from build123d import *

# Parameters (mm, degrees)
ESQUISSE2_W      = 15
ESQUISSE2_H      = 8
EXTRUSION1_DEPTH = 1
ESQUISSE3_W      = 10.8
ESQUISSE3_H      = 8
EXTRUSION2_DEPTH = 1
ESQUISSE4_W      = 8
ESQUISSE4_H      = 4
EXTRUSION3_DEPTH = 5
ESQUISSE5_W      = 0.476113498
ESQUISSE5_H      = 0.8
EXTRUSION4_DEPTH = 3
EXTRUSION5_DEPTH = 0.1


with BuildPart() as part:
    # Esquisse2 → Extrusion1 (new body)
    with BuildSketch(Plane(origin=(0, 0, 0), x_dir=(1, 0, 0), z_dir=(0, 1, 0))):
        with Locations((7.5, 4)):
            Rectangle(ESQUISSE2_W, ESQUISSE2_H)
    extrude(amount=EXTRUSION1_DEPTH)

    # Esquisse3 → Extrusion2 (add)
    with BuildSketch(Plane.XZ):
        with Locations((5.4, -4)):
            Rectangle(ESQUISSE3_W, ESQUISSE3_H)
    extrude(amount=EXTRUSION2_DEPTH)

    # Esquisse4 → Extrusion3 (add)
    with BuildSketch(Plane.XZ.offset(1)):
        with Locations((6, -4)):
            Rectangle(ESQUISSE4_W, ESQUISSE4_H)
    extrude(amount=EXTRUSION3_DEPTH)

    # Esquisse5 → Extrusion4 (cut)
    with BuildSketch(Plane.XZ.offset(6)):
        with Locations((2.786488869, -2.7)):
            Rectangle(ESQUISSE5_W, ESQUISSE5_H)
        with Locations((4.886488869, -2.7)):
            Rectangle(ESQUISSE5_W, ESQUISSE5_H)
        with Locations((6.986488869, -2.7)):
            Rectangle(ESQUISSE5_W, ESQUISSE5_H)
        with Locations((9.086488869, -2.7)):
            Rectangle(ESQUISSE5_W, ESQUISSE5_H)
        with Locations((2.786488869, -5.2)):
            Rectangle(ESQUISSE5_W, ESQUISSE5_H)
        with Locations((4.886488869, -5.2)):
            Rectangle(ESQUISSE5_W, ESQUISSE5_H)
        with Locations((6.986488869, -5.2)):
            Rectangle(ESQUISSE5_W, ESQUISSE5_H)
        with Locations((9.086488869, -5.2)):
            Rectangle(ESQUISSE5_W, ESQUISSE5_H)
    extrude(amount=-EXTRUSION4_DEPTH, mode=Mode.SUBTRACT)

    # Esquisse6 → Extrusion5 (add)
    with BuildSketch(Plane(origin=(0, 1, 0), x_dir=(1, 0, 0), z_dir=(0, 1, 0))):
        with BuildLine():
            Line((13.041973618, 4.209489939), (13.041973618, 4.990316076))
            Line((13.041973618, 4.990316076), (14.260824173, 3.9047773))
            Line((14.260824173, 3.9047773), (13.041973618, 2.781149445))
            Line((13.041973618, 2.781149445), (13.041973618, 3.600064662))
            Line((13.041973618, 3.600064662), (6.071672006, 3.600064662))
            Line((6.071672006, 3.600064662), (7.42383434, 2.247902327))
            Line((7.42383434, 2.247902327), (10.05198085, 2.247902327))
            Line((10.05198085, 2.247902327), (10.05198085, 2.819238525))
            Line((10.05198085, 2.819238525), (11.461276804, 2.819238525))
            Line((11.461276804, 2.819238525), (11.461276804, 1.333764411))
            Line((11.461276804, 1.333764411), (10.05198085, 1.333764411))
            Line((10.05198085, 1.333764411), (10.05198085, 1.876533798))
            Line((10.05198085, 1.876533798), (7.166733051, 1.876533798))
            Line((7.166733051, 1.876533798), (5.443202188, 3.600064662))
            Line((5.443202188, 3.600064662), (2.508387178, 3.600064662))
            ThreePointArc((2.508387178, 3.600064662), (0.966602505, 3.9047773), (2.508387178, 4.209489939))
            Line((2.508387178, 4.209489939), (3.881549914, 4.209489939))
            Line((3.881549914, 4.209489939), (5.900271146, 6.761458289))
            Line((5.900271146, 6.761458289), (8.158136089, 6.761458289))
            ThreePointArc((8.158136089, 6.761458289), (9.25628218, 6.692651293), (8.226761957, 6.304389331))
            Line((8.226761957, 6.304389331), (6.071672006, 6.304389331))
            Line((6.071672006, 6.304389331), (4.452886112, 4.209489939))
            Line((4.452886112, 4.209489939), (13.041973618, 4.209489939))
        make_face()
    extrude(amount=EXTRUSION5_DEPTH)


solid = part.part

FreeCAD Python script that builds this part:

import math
import FreeCAD as App
import Part
import Sketcher
from FreeCAD import Vector
Q = App.Units.Quantity


def add_polygon(sketch, points):
    """Adds a closed chain of lines whose ends are joined by coincident constraints."""
    first, n = sketch.GeometryCount, len(points)
    for a, b in zip(points, points[1:] + points[:1]):
        sketch.addGeometry(Part.LineSegment(App.Vector(*a, 0), App.Vector(*b, 0)), False)
    for i in range(n):
        sketch.addConstraint(Sketcher.Constraint("Coincident", first + i, 2, first + (i + 1) % n, 1))

doc = App.newDocument("Part")
params = doc.addObject("Spreadsheet::Sheet", "Params")
for row, (alias, value) in enumerate([
    ("sketch1_width", "15 mm"),
    ("sketch1_height", "8 mm"),
    ("pad1_length", "1 mm"),
    ("sketch2_height", "8 mm"),
    ("sketch2_width", "10.8 mm"),
    ("pad2_length", "1 mm"),
    ("sketch3_width", "8 mm"),
    ("sketch3_height", "4 mm"),
    ("pad3_length", "5 mm"),
    ("sketch4_height", "0.8 mm"),
    ("pocket1_length", "3 mm"),
    ("pad4_length", "0.1 mm"),
], start=1):
    params.set(f"A{row}", alias)
    params.set(f"B{row}", "=" + value)
    params.setAlias(f"B{row}", alias)

body = doc.addObject("PartDesign::Body", "Body")

sketch1 = body.newObject("Sketcher::SketchObject", "Sketch")
sketch1.AttachmentSupport = (doc.getObject("XZ_Plane"), [""])
sketch1.MapMode = "FlatFace"
add_polygon(sketch1, [(0, -8), (0, 0), (15, 0), (15, -8)])
sketch1.addConstraint([
    Sketcher.Constraint("Vertical", 0),
    Sketcher.Constraint("Horizontal", 1),
    Sketcher.Constraint("Vertical", 2),
    Sketcher.Constraint("Horizontal", 3),
    Sketcher.Constraint("Coincident", 0, 2, -1, 1),
    Sketcher.Constraint("DistanceX", 1, 1, 1, 2, 15.0),
    Sketcher.Constraint("DistanceY", 0, 1, 0, 2, 8.0),
])
sketch1.setExpression("Constraints[9]", "Params.sketch1_width")
sketch1.setExpression("Constraints[10]", "Params.sketch1_height")
pad1 = body.newObject("PartDesign::Pad", "Pad")
pad1.Profile = sketch1
pad1.setExpression("Length", "Params.pad1_length")
pad1.Reversed = True

sketch2 = body.newObject("Sketcher::SketchObject", "Sketch001")
sketch2.AttachmentSupport = (doc.getObject("XZ_Plane"), [""])
sketch2.MapMode = "FlatFace"
add_polygon(sketch2, [(0, 0), (0, -8), (10.8, -8), (10.8, 0)])
sketch2.addConstraint([
    Sketcher.Constraint("Vertical", 0),
    Sketcher.Constraint("Horizontal", 1),
    Sketcher.Constraint("Vertical", 2),
    Sketcher.Constraint("Horizontal", 3),
    Sketcher.Constraint("Coincident", 3, 2, -1, 1),
    Sketcher.Constraint("DistanceY", 0, 2, 0, 1, 8.0),
    Sketcher.Constraint("DistanceX", 1, 1, 1, 2, 10.8),
])
sketch2.setExpression("Constraints[9]", "Params.sketch2_height")
sketch2.setExpression("Constraints[10]", "Params.sketch2_width")
pad2 = body.newObject("PartDesign::Pad", "Pad001")
pad2.Profile = sketch2
pad2.setExpression("Length", "Params.pad2_length")

sketch3 = body.newObject("Sketcher::SketchObject", "Sketch002")
sketch3.AttachmentSupport = (doc.getObject("XZ_Plane"), [""])
sketch3.MapMode = "FlatFace"
sketch3.AttachmentOffset = App.Placement(Vector(0, 0, 1), App.Rotation())
add_polygon(sketch3, [(2, -2), (2, -6), (10, -6), (10, -2)])
sketch3.addConstraint([
    Sketcher.Constraint("Vertical", 0),
    Sketcher.Constraint("Horizontal", 1),
    Sketcher.Constraint("Vertical", 2),
    Sketcher.Constraint("Horizontal", 3),
    Sketcher.Constraint("DistanceX", 1, 1, 1, 2, 8.0),
    Sketcher.Constraint("DistanceY", 0, 2, 0, 1, 4.0),
    Sketcher.Constraint("DistanceX", -1, 1, 0, 2, 2.0),
    Sketcher.Constraint("DistanceY", 0, 2, -1, 1, 6.0),
])
sketch3.setExpression("Constraints[8]", "Params.sketch3_width")
sketch3.setExpression("Constraints[9]", "Params.sketch3_height")
pad3 = body.newObject("PartDesign::Pad", "Pad002")
pad3.Profile = sketch3
pad3.setExpression("Length", "Params.pad3_length")

sketch4 = body.newObject("Sketcher::SketchObject", "Sketch003")
sketch4.AttachmentSupport = (doc.getObject("XZ_Plane"), [""])
sketch4.MapMode = "FlatFace"
sketch4.AttachmentOffset = App.Placement(Vector(0, 0, 6), App.Rotation())
add_polygon(sketch4, [(2.548432, -2.3), (2.548432, -3.1), (3.024546, -3.1), (3.024546, -2.3)])
add_polygon(sketch4, [(4.648432, -2.3), (4.648432, -3.1), (5.124546, -3.1), (5.124546, -2.3)])
add_polygon(sketch4, [(6.748432, -2.3), (6.748432, -3.1), (7.224546, -3.1), (7.224546, -2.3)])
add_polygon(sketch4, [(8.848432, -2.3), (8.848432, -3.1), (9.324546, -3.1), (9.324546, -2.3)])
add_polygon(sketch4, [(2.548432, -4.8), (2.548432, -5.6), (3.024546, -5.6), (3.024546, -4.8)])
add_polygon(sketch4, [(4.648432, -4.8), (4.648432, -5.6), (5.124546, -5.6), (5.124546, -4.8)])
add_polygon(sketch4, [(6.748432, -4.8), (6.748432, -5.6), (7.224546, -5.6), (7.224546, -4.8)])
add_polygon(sketch4, [(8.848432, -4.8), (8.848432, -5.6), (9.324546, -5.6), (9.324546, -4.8)])
sketch4.addConstraint([
    Sketcher.Constraint("Vertical", 0),
    Sketcher.Constraint("Horizontal", 1),
    Sketcher.Constraint("Vertical", 2),
    Sketcher.Constraint("Horizontal", 3),
    Sketcher.Constraint("Vertical", 4),
    Sketcher.Constraint("Horizontal", 5),
    Sketcher.Constraint("Vertical", 6),
    Sketcher.Constraint("Horizontal", 7),
    Sketcher.Constraint("Vertical", 8),
    Sketcher.Constraint("Horizontal", 9),
    Sketcher.Constraint("Vertical", 10),
    Sketcher.Constraint("Horizontal", 11),
    Sketcher.Constraint("Vertical", 12),
    Sketcher.Constraint("Horizontal", 13),
    Sketcher.Constraint("Vertical", 14),
    Sketcher.Constraint("Horizontal", 15),
    Sketcher.Constraint("Vertical", 16),
    Sketcher.Constraint("Horizontal", 17),
    Sketcher.Constraint("Vertical", 18),
    Sketcher.Constraint("Horizontal", 19),
    Sketcher.Constraint("Vertical", 20),
    Sketcher.Constraint("Horizontal", 21),
    Sketcher.Constraint("Vertical", 22),
    Sketcher.Constraint("Horizontal", 23),
    Sketcher.Constraint("Vertical", 24),
    Sketcher.Constraint("Horizontal", 25),
    Sketcher.Constraint("Vertical", 26),
    Sketcher.Constraint("Horizontal", 27),
    Sketcher.Constraint("Vertical", 28),
    Sketcher.Constraint("Horizontal", 29),
    Sketcher.Constraint("Vertical", 30),
    Sketcher.Constraint("Horizontal", 31),
    Sketcher.Constraint("Horizontal", 1, 2, 4, 2),
    Sketcher.Constraint("Horizontal", 3, 2, 6, 2),
    Sketcher.Constraint("Horizontal", 5, 2, 8, 2),
    Sketcher.Constraint("Horizontal", 7, 2, 10, 2),
    Sketcher.Constraint("Horizontal", 9, 2, 12, 2),
    Sketcher.Constraint("Horizontal", 11, 2, 14, 2),
    Sketcher.Constraint("Horizontal", 17, 2, 20, 2),
    Sketcher.Constraint("Horizontal", 19, 2, 22, 2),
    Sketcher.Constraint("Horizontal", 21, 2, 24, 2),
    Sketcher.Constraint("Horizontal", 23, 2, 26, 2),
    Sketcher.Constraint("Horizontal", 25, 2, 28, 2),
    Sketcher.Constraint("Horizontal", 27, 2, 30, 2),
    Sketcher.Constraint("Vertical", 3, 2, 16, 2),
    Sketcher.Constraint("Vertical", 2, 2, 17, 2),
    Sketcher.Constraint("Vertical", 7, 2, 20, 2),
    Sketcher.Constraint("Vertical", 6, 2, 21, 2),
    Sketcher.Constraint("Vertical", 11, 2, 24, 2),
    Sketcher.Constraint("Vertical", 10, 2, 25, 2),
    Sketcher.Constraint("Vertical", 15, 2, 28, 2),
    Sketcher.Constraint("Vertical", 14, 2, 29, 2),
    Sketcher.Constraint("Equal", 3, 5),
    Sketcher.Constraint("Equal", 7, 9),
    Sketcher.Constraint("Equal", 11, 13),
    Sketcher.Constraint("Equal", 14, 16),
    Sketcher.Constraint("DistanceY", 0, 2, 0, 1, 0.8),
    Sketcher.Constraint("DistanceY", 0, 2, -1, 1, 3.1),
    Sketcher.Constraint("DistanceY", 16, 2, -1, 1, 5.6),
    Sketcher.Constraint("DistanceX", 0, 2, 4, 2, 2.1),
    Sketcher.Constraint("DistanceX", 4, 2, 8, 2, 2.1),
    Sketcher.Constraint("DistanceX", 8, 2, 12, 2, 2.1),
    Sketcher.Constraint("DistanceX", 1, 1, 1, 2, 0.476113),
    Sketcher.Constraint("DistanceX", -1, 1, 0, 2, 2.548432),
])
sketch4.setExpression("Constraints[88]", "Params.sketch4_height")
pocket1 = body.newObject("PartDesign::Pocket", "Pocket")
pocket1.Profile = sketch4
pocket1.setExpression("Length", "Params.pocket1_length")

sketch5 = body.newObject("Sketcher::SketchObject", "Sketch004")
sketch5.AttachmentSupport = (doc.getObject("XZ_Plane"), [""])
sketch5.MapMode = "FlatFace"
sketch5.AttachmentOffset = App.Placement(Vector(0, 0, -1), App.Rotation())
sketch5.addGeometry([
    Part.LineSegment(Vector(13.041974, -4.990316, 0), Vector(13.041974, -4.20949, 0)),
    Part.LineSegment(Vector(13.041974, -4.20949, 0), Vector(4.452886, -4.20949, 0)),
    Part.LineSegment(Vector(4.452886, -4.20949, 0), Vector(6.071672, -6.304389, 0)),
    Part.LineSegment(Vector(6.071672, -6.304389, 0), Vector(8.226762, -6.304389, 0)),
    Part.ArcOfCircle(Part.Circle(Vector(8.699819, -6.609102, 0), Vector(0, 0, 1), 0.562701), math.radians(-164.290565), math.radians(147.212968)),
    Part.LineSegment(Vector(8.158136, -6.761458, 0), Vector(5.900271, -6.761458, 0)),
    Part.LineSegment(Vector(5.900271, -6.761458, 0), Vector(3.88155, -4.20949, 0)),
    Part.LineSegment(Vector(3.88155, -4.20949, 0), Vector(2.508387, -4.20949, 0)),
    Part.ArcOfCircle(Part.Circle(Vector(1.767606, -3.904777, 0), Vector(0, 0, 1), 0.801003), math.radians(22.359306), math.radians(337.640694)),
    Part.LineSegment(Vector(2.508387, -3.600065, 0), Vector(5.443202, -3.600065, 0)),
    Part.LineSegment(Vector(5.443202, -3.600065, 0), Vector(7.166733, -1.876534, 0)),
    Part.LineSegment(Vector(7.166733, -1.876534, 0), Vector(10.051981, -1.876534, 0)),
    Part.LineSegment(Vector(10.051981, -1.876534, 0), Vector(10.051981, -1.333764, 0)),
    Part.LineSegment(Vector(10.051981, -1.333764, 0), Vector(11.461277, -1.333764, 0)),
    Part.LineSegment(Vector(11.461277, -1.333764, 0), Vector(11.461277, -2.819239, 0)),
    Part.LineSegment(Vector(11.461277, -2.819239, 0), Vector(10.051981, -2.819239, 0)),
    Part.LineSegment(Vector(10.051981, -2.819239, 0), Vector(10.051981, -2.247902, 0)),
    Part.LineSegment(Vector(10.051981, -2.247902, 0), Vector(7.423834, -2.247902, 0)),
    Part.LineSegment(Vector(7.423834, -2.247902, 0), Vector(6.071672, -3.600065, 0)),
    Part.LineSegment(Vector(6.071672, -3.600065, 0), Vector(13.041974, -3.600065, 0)),
    Part.LineSegment(Vector(13.041974, -3.600065, 0), Vector(13.041974, -2.781149, 0)),
    Part.LineSegment(Vector(13.041974, -2.781149, 0), Vector(14.260824, -3.904777, 0)),
    Part.LineSegment(Vector(14.260824, -3.904777, 0), Vector(13.041974, -4.990316, 0)),
], False)
sketch5.addConstraint([
    Sketcher.Constraint("Coincident", 0, 2, 1, 1),
    Sketcher.Constraint("Coincident", 1, 2, 2, 1),
    Sketcher.Constraint("Coincident", 2, 2, 3, 1),
    Sketcher.Constraint("Coincident", 3, 2, 4, 2),
    Sketcher.Constraint("Coincident", 4, 1, 5, 1),
    Sketcher.Constraint("Coincident", 5, 2, 6, 1),
    Sketcher.Constraint("Coincident", 6, 2, 7, 1),
    Sketcher.Constraint("Coincident", 7, 2, 8, 2),
    Sketcher.Constraint("Coincident", 8, 1, 9, 1),
    Sketcher.Constraint("Coincident", 9, 2, 10, 1),
    Sketcher.Constraint("Coincident", 10, 2, 11, 1),
    Sketcher.Constraint("Coincident", 11, 2, 12, 1),
    Sketcher.Constraint("Coincident", 12, 2, 13, 1),
    Sketcher.Constraint("Coincident", 13, 2, 14, 1),
    Sketcher.Constraint("Coincident", 14, 2, 15, 1),
    Sketcher.Constraint("Coincident", 15, 2, 16, 1),
    Sketcher.Constraint("Coincident", 16, 2, 17, 1),
    Sketcher.Constraint("Coincident", 17, 2, 18, 1),
    Sketcher.Constraint("Coincident", 18, 2, 19, 1),
    Sketcher.Constraint("Coincident", 19, 2, 20, 1),
    Sketcher.Constraint("Coincident", 20, 2, 21, 1),
    Sketcher.Constraint("Coincident", 21, 2, 22, 1),
    Sketcher.Constraint("Coincident", 22, 2, 0, 1),
    Sketcher.Constraint("Vertical", 0),
    Sketcher.Constraint("Horizontal", 1),
    Sketcher.Constraint("Horizontal", 3),
    Sketcher.Constraint("Horizontal", 5),
    Sketcher.Constraint("Horizontal", 7),
    Sketcher.Constraint("Horizontal", 9),
    Sketcher.Constraint("Horizontal", 11),
    Sketcher.Constraint("Vertical", 12),
    Sketcher.Constraint("Horizontal", 13),
    Sketcher.Constraint("Vertical", 14),
    Sketcher.Constraint("Horizontal", 15),
    Sketcher.Constraint("Vertical", 16),
    Sketcher.Constraint("Horizontal", 17),
    Sketcher.Constraint("Horizontal", 19),
    Sketcher.Constraint("Vertical", 20),
    Sketcher.Constraint("Parallel", 10, 18),
    Sketcher.Constraint("Horizontal", 1, 2, 6, 2),
    Sketcher.Constraint("Horizontal", 9, 2, 18, 2),
    Sketcher.Constraint("Horizontal", 8, 3, 21, 2),
    Sketcher.Constraint("Vertical", 7, 2, 8, 1),
    Sketcher.Constraint("Vertical", 12, 2, 15, 2),
    Sketcher.Constraint("Vertical", 2, 2, 18, 2),
    Sketcher.Constraint("Vertical", 0, 2, 19, 2),
    Sketcher.Constraint("Angle", 10, Q("45 deg")),
    Sketcher.Constraint("Radius", 4, 0.562701),
    Sketcher.Constraint("DistanceX", 19, 1, 19, 2, 6.970302),
    Sketcher.Constraint("Radius", 8, 0.801003),
    Sketcher.Constraint("DistanceX", 3, 1, 3, 2, 2.15509),
    Sketcher.Constraint("DistanceY", 12, 1, 12, 2, 0.542769),
    Sketcher.Constraint("DistanceY", 4, 3, -1, 1, 6.609102),
    Sketcher.Constraint("DistanceY", 2, 2, 1, 2, 2.094899),
    Sketcher.Constraint("DistanceX", 5, 2, 2, 2, 0.171401),
    Sketcher.Constraint("DistanceX", 7, 2, 1, 2, 1.944499),
    Sketcher.Constraint("DistanceY", 9, 2, 12, 2, 2.2663),
    Sketcher.Constraint("DistanceX", 10, 2, 17, 2, 0.257101),
    Sketcher.Constraint("Distance", 21, 1.65775),
    Sketcher.Constraint("DistanceX", 1, 2, 1, 1, 8.589088),
    Sketcher.Constraint("DistanceX", 5, 2, 5, 1, 2.257865),
    Sketcher.Constraint("DistanceX", 7, 2, 7, 1, 1.373163),
    Sketcher.Constraint("DistanceX", 9, 1, 9, 2, 2.934815),
    Sketcher.Constraint("DistanceX", 11, 1, 11, 2, 2.885248),
    Sketcher.Constraint("DistanceX", 13, 1, 13, 2, 1.409296),
    Sketcher.Constraint("DistanceY", 0, 1, 0, 2, 0.780826),
    Sketcher.Constraint("DistanceY", 14, 2, 14, 1, 1.485474),
    Sketcher.Constraint("DistanceY", 20, 1, 20, 2, 0.818915),
    Sketcher.Constraint("DistanceX", -1, 1, 4, 3, 8.699819),
    Sketcher.Constraint("DistanceY", 0, 2, -1, 1, 4.20949),
    Sketcher.Constraint("DistanceY", 14, 2, -1, 1, 2.819239),
])
pad4 = body.newObject("PartDesign::Pad", "Pad003")
pad4.Profile = sketch5
pad4.setExpression("Length", "Params.pad4_length")
pad4.Reversed = True

doc.recompute()
